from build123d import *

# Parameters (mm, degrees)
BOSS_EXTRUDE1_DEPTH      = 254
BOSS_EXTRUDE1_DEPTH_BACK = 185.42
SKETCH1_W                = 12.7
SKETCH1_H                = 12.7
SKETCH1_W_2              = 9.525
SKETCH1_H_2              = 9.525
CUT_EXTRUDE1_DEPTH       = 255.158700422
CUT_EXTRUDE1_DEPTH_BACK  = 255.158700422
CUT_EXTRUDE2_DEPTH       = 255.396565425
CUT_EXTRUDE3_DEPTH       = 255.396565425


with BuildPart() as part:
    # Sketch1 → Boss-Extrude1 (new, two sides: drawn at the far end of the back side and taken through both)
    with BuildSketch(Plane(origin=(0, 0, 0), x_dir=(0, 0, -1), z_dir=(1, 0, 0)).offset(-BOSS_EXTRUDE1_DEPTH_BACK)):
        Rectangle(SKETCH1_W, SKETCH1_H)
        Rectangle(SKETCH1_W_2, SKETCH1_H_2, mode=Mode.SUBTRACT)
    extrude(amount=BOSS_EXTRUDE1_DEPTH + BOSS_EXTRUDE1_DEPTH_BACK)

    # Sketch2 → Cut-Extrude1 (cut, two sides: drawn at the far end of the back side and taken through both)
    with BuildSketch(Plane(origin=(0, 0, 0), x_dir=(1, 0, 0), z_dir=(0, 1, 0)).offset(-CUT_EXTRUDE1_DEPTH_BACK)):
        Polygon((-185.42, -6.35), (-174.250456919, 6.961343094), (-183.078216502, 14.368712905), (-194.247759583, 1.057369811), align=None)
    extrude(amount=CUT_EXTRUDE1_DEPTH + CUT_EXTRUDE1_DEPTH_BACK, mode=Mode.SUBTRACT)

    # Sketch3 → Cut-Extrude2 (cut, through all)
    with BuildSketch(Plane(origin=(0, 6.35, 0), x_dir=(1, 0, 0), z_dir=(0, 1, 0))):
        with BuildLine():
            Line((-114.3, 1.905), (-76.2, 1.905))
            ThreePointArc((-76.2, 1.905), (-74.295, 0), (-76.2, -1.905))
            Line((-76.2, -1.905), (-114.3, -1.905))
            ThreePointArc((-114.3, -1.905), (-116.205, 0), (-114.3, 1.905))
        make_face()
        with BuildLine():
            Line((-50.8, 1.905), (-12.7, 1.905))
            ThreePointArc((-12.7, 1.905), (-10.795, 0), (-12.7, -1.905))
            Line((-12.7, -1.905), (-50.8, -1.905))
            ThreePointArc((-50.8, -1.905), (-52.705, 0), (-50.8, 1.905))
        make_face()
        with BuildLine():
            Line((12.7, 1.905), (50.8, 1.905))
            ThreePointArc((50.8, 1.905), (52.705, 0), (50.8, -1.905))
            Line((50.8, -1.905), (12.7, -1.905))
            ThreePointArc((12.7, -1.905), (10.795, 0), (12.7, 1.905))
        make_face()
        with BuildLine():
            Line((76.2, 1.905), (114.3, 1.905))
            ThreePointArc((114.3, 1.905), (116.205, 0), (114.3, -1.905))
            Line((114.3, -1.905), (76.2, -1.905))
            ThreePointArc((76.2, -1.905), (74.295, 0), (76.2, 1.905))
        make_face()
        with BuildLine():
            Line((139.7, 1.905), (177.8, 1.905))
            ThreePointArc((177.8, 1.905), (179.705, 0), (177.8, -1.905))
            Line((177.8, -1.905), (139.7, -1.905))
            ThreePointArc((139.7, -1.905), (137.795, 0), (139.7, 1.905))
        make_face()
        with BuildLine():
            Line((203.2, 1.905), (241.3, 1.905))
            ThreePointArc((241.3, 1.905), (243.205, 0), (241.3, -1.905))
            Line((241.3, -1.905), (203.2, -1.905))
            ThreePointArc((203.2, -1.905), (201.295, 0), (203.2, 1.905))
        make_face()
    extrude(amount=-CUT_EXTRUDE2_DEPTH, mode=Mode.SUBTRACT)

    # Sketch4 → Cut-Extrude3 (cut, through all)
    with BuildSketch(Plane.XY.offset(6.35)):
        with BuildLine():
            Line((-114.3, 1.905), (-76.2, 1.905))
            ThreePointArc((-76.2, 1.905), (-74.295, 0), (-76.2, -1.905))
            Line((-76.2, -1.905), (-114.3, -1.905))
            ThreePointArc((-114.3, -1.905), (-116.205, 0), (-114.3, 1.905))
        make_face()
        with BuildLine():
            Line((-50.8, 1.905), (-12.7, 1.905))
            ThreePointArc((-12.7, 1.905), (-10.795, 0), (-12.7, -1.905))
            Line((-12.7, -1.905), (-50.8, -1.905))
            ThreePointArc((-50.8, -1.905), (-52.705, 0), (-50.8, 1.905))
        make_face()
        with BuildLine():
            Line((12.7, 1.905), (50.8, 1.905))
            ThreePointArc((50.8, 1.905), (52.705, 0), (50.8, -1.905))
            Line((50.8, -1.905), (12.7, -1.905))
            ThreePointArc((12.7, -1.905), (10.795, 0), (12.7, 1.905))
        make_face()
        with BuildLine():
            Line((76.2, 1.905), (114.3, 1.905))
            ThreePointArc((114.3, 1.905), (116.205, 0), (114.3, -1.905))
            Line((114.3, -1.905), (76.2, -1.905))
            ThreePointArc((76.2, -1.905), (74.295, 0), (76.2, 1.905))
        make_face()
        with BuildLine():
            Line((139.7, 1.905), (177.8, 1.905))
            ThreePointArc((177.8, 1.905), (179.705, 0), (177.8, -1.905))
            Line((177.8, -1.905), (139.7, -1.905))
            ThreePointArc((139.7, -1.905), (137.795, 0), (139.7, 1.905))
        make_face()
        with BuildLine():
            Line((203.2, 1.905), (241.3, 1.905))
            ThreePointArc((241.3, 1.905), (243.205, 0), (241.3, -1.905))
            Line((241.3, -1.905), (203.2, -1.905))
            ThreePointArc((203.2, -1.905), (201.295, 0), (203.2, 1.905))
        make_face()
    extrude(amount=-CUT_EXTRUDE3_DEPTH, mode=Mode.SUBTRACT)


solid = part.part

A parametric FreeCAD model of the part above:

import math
import FreeCAD as App
import Part
import Sketcher
from FreeCAD import Vector
Q = App.Units.Quantity

doc = App.newDocument("Part")
body = doc.addObject("PartDesign::Body", "Body")

# Sketch on YZ plane
sketch1 = body.newObject("Sketcher::SketchObject", "Sketch")
sketch1.AttachmentSupport = (doc.getObject("YZ_Plane"), [""])
sketch1.MapMode = "FlatFace"
sketch1.addGeometry([
    Part.LineSegment(Vector(6, 6, 0), Vector(-6, 6, 0)),  # 0
    Part.LineSegment(Vector(-6, 6, 0), Vector(-6, -6, 0)),  # 1
    Part.LineSegment(Vector(-6, -6, 0), Vector(6, -6, 0)),  # 2
    Part.LineSegment(Vector(6, -6, 0), Vector(6, 6, 0)),  # 3
    Part.LineSegment(Vector(-5, -5, 0), Vector(-5, 5, 0)),  # 4
    Part.LineSegment(Vector(-5, 5, 0), Vector(5, 5, 0)),  # 5
    Part.LineSegment(Vector(5, 5, 0), Vector(5, -5, 0)),  # 6
    Part.LineSegment(Vector(5, -5, 0), Vector(-5, -5, 0)),  # 7
], False)
sketch1.addConstraint([
    Sketcher.Constraint("Coincident", 0, 2, 1, 1),
    Sketcher.Constraint("Coincident", 1, 2, 2, 1),
    Sketcher.Constraint("Coincident", 2, 2, 3, 1),
    Sketcher.Constraint("Coincident", 3, 2, 0, 1),
    Sketcher.Constraint("Coincident", 4, 2, 5, 1),
    Sketcher.Constraint("Coincident", 5, 2, 6, 1),
    Sketcher.Constraint("Coincident", 6, 2, 7, 1),
    Sketcher.Constraint("Coincident", 7, 2, 4, 1),
    Sketcher.Constraint("Horizontal", 0),
    Sketcher.Constraint("Vertical", 1),
    Sketcher.Constraint("Horizontal", 2),
    Sketcher.Constraint("Vertical", 3),
    Sketcher.Constraint("Vertical", 4),
    Sketcher.Constraint("Horizontal", 5),
    Sketcher.Constraint("Vertical", 6),
    Sketcher.Constraint("Horizontal", 7),
    Sketcher.Constraint("Symmetric", 0, 2, 2, 2, -1, 1),
    Sketcher.Constraint("Symmetric", 4, 2, 6, 2, -1, 1),
    Sketcher.Constraint("Equal", 2, 1),
    Sketcher.Constraint("Equal", 7, 4),
    Sketcher.Constraint("DistanceX", 0, 2, 0, 1, Q("0.5 in")),
    Sketcher.Constraint("DistanceX", 5, 1, 5, 2, Q("0.375 in")),
])
pad1 = body.newObject("PartDesign::Pad", "Pad")
pad1.Profile = sketch1
pad1.Type = "TwoLengths"
pad1.Length = Q("10 in")
pad1.Length2 = Q("7.3 in")

# Sketch on XZ plane
sketch2 = body.newObject("Sketcher::SketchObject", "Sketch001")
sketch2.AttachmentSupport = (doc.getObject("XZ_Plane"), [""])
sketch2.MapMode = "FlatFace"
sketch2.addGeometry([
    Part.LineSegment(Vector(-185, 6, 0), Vector(-174, -7, 0)),
    Part.LineSegment(Vector(-174, -7, 0), Vector(-183, -14, 0)),
    Part.LineSegment(Vector(-183, -14, 0), Vector(-194, -1, 0)),
    Part.LineSegment(Vector(-194, -1, 0), Vector(-185, 6, 0)),
], False)
sketch2.addConstraint([
    Sketcher.Constraint("Coincident", 0, 2, 1, 1),
    Sketcher.Constraint("Coincident", 1, 2, 2, 1),
    Sketcher.Constraint("Coincident", 2, 2, 3, 1),
    Sketcher.Constraint("Coincident", 3, 2, 0, 1),
    Sketcher.Constraint("Perpendicular", 0, 1),
    Sketcher.Constraint("Perpendicular", 1, 2),
    Sketcher.Constraint("Perpendicular", 2, 3),
    Sketcher.Constraint("Angle", 0, Q("-50 deg")),
    Sketcher.Constraint("DistanceX", 3, 2, -1, 1, Q("7.3 in")),
    Sketcher.Constraint("DistanceY", -1, 1, 3, 2, Q("0.25 in")),
    Sketcher.Constraint("Distance", 1, Q("11.523822 mm")),
    Sketcher.Constraint("Distance", 0, Q("17.376724 mm")),
])
pocket1 = body.newObject("PartDesign::Pocket", "Pocket")
pocket1.Profile = sketch2
pocket1.Type = "ThroughAll"
pocket1.Midplane = True

# Sketch on XZ plane
sketch3 = body.newObject("Sketcher::SketchObject", "Sketch002")
sketch3.AttachmentSupport = (doc.getObject("XZ_Plane"), [""])
sketch3.MapMode = "FlatFace"
sketch3.AttachmentOffset = App.Placement(Vector(0, 0, -0.25 * 25.4), App.Rotation())
sketch3.addGeometry([
    Part.LineSegment(Vector(-76.2, -1.9, 0), Vector(-114.3, -1.9, 0)),  # 0
    Part.ArcOfCircle(Part.Circle(Vector(-114.3, 0, 0), Vector(0, 0, 1), 1.9), math.radians(90), math.radians(270)),  # 1
    Part.LineSegment(Vector(-114.3, 1.9, 0), Vector(-76.2, 1.9, 0)),  # 2
    Part.ArcOfCircle(Part.Circle(Vector(-76.2, 0, 0), Vector(0, 0, 1), 1.9), math.radians(-90), math.radians(90)),  # 3
    Part.LineSegment(Vector(-12.7, -1.9, 0), Vector(-50.8, -1.9, 0)),  # 4
    Part.ArcOfCircle(Part.Circle(Vector(-50.8, 0, 0), Vector(0, 0, 1), 1.9), math.radians(90), math.radians(270)),  # 5
    Part.LineSegment(Vector(-50.8, 1.9, 0), Vector(-12.7, 1.9, 0)),  # 6
    Part.ArcOfCircle(Part.Circle(Vector(-12.7, 0, 0), Vector(0, 0, 1), 1.9), math.radians(-90), math.radians(90)),  # 7
    Part.LineSegment(Vector(50.8, -1.9, 0), Vector(12.7, -1.9, 0)),  # 8
    Part.ArcOfCircle(Part.Circle(Vector(12.7, 0, 0), Vector(0, 0, 1), 1.9), math.radians(90), math.radians(270)),  # 9
    Part.LineSegment(Vector(12.7, 1.9, 0), Vector(50.8, 1.9, 0)),  # 10
    Part.ArcOfCircle(Part.Circle(Vector(50.8, 0, 0), Vector(0, 0, 1), 1.9), math.radians(-90), math.radians(90)),  # 11
    Part.LineSegment(Vector(114.3, -1.9, 0), Vector(76.2, -1.9, 0)),  # 12
    Part.ArcOfCircle(Part.Circle(Vector(76.2, 0, 0), Vector(0, 0, 1), 1.9), math.radians(90), math.radians(270)),  # 13
    Part.LineSegment(Vector(76.2, 1.9, 0), Vector(114.3, 1.9, 0)),  # 14
    Part.ArcOfCircle(Part.Circle(Vector(114.3, 0, 0), Vector(0, 0, 1), 1.9), math.radians(-90), math.radians(90)),  # 15
    Part.LineSegment(Vector(177.8, -1.9, 0), Vector(139.7, -1.9, 0)),  # 16
    Part.ArcOfCircle(Part.Circle(Vector(139.7, 0, 0), Vector(0, 0, 1), 1.9), math.radians(90), math.radians(270)),  # 17
    Part.LineSegment(Vector(139.7, 1.9, 0), Vector(177.8, 1.9, 0)),  # 18
    Part.ArcOfCircle(Part.Circle(Vector(177.8, 0, 0), Vector(0, 0, 1), 1.9), math.radians(-90), math.radians(90)),  # 19
    Part.LineSegment(Vector(241.3, -1.9, 0), Vector(203.2, -1.9, 0)),  # 20
    Part.ArcOfCircle(Part.Circle(Vector(203.2, 0, 0), Vector(0, 0, 1), 1.9), math.radians(90), math.radians(270)),  # 21
    Part.LineSegment(Vector(203.2, 1.9, 0), Vector(241.3, 1.9, 0)),  # 22
    Part.ArcOfCircle(Part.Circle(Vector(241.3, 0, 0), Vector(0, 0, 1), 1.9), math.radians(-90), math.radians(90)),  # 23
], False)
sketch3.addConstraint([
    Sketcher.Constraint("Tangent", 0, 2, 1, 2),
    Sketcher.Constraint("Tangent", 1, 1, 2, 1),
    Sketcher.Constraint("Tangent", 2, 2, 3, 2),
    Sketcher.Constraint("Tangent", 3, 1, 0, 1),
    Sketcher.Constraint("Tangent", 4, 2, 5, 2),
    Sketcher.Constraint("Tangent", 5, 1, 6, 1),
    Sketcher.Constraint("Tangent", 6, 2, 7, 2),
    Sketcher.Constraint("Tangent", 7, 1, 4, 1),
    Sketcher.Constraint("Tangent", 8, 2, 9, 2),
    Sketcher.Constraint("Tangent", 9, 1, 10, 1),
    Sketcher.Constraint("Tangent", 10, 2, 11, 2),
    Sketcher.Constraint("Tangent", 11, 1, 8, 1),
    Sketcher.Constraint("Tangent", 12, 2, 13, 2),
    Sketcher.Constraint("Tangent", 13, 1, 14, 1),
    Sketcher.Constraint("Tangent", 14, 2, 15, 2),
    Sketcher.Constraint("Tangent", 15, 1, 12, 1),
    Sketcher.Constraint("Tangent", 16, 2, 17, 2),
    Sketcher.Constraint("Tangent", 17, 1, 18, 1),
    Sketcher.Constraint("Tangent", 18, 2, 19, 2),
    Sketcher.Constraint("Tangent", 19, 1, 16, 1),
    Sketcher.Constraint("Tangent", 20, 2, 21, 2),
    Sketcher.Constraint("Tangent", 21, 1, 22, 1),
    Sketcher.Constraint("Tangent", 22, 2, 23, 2),
    Sketcher.Constraint("Tangent", 23, 1, 20, 1),
    Sketcher.Constraint("Horizontal", 0),
    Sketcher.Constraint("Horizontal", 2),
    Sketcher.Constraint("Horizontal", 4),
    Sketcher.Constraint("Horizontal", 6),
    Sketcher.Constraint("Horizontal", 8),
    Sketcher.Constraint("Horizontal", 10),
    Sketcher.Constraint("Horizontal", 12),
    Sketcher.Constraint("Horizontal", 14),
    Sketcher.Constraint("Horizontal", 16),
    Sketcher.Constraint("Horizontal", 18),
    Sketcher.Constraint("Horizontal", 20),
    Sketcher.Constraint("Horizontal", 22),
    Sketcher.Constraint("Equal", 3, 5),
    Sketcher.Constraint("Equal", 7, 9),
    Sketcher.Constraint("Equal", 11, 13),
    Sketcher.Constraint("Equal", 15, 17),
    Sketcher.Constraint("Equal", 19, 21),
    Sketcher.Constraint("Symmetric", 7, 3, 9, 3, -1, 1),
    Sketcher.Constraint("Symmetric", 3, 3, 13, 3, -1, 1),
    Sketcher.Constraint("Symmetric", 5, 3, 11, 3, -2),
    Sketcher.Constraint("Symmetric", 1, 3, 15, 3, -2),
    Sketcher.Constraint("PointOnObject", 17, 3, -1),
    Sketcher.Constraint("PointOnObject", 21, 3, -1),
    Sketcher.Constraint("Equal", 2, 4),
    Sketcher.Constraint("Equal", 14, 16),
    Sketcher.Constraint("Equal", 18, 20),
    Sketcher.Constraint("DistanceX", 0, 2, 0, 1, Q("1.5 in")),
    Sketcher.Constraint("DistanceX", 3, 3, -1, 1, Q("3 in")),
    Sketcher.Constraint("DistanceX", 5, 3, -1, 1, Q("2 in")),
    Sketcher.Constraint("DistanceX", -1, 1, 19, 3, Q("7 in")),
    Sketcher.Constraint("DistanceX", -1, 1, 21, 3, Q("8 in")),
    Sketcher.Constraint("Radius", 1, Q("0.075 in")),
])
pocket2 = body.newObject("PartDesign::Pocket", "Pocket001")
pocket2.Profile = sketch3
pocket2.Type = "ThroughAll"
pocket2.Reversed = True

# Sketch on XY plane
sketch4 = body.newObject("Sketcher::SketchObject", "Sketch003")
sketch4.AttachmentSupport = (doc.getObject("XY_Plane"), [""])
sketch4.MapMode = "FlatFace"
sketch4.AttachmentOffset = App.Placement(Vector(0, 0, 0.25 * 25.4), App.Rotation())
sketch4.addGeometry([
    Part.LineSegment(Vector(-76.2, 1.9, 0), Vector(-114.3, 1.9, 0)),  # 0
    Part.ArcOfCircle(Part.Circle(Vector(-114.3, 0, 0), Vector(0, 0, 1), 1.9), math.radians(90), math.radians(270)),  # 1
    Part.LineSegment(Vector(-114.3, -1.9, 0), Vector(-76.2, -1.9, 0)),  # 2
    Part.ArcOfCircle(Part.Circle(Vector(-76.2, 0, 0), Vector(0, 0, 1), 1.9), math.radians(-90), math.radians(90)),  # 3
    Part.LineSegment(Vector(-12.7, 1.9, 0), Vector(-50.8, 1.9, 0)),  # 4
    Part.ArcOfCircle(Part.Circle(Vector(-50.8, 0, 0), Vector(0, 0, 1), 1.9), math.radians(90), math.radians(270)),  # 5
    Part.LineSegment(Vector(-50.8, -1.9, 0), Vector(-12.7, -1.9, 0)),  # 6
    Part.ArcOfCircle(Part.Circle(Vector(-12.7, 0, 0), Vector(0, 0, 1), 1.9), math.radians(-90), math.radians(90)),  # 7
    Part.LineSegment(Vector(50.8, 1.9, 0), Vector(12.7, 1.9, 0)),  # 8
    Part.ArcOfCircle(Part.Circle(Vector(12.7, 0, 0), Vector(0, 0, 1), 1.9), math.radians(90), math.radians(270)),  # 9
    Part.LineSegment(Vector(12.7, -1.9, 0), Vector(50.8, -1.9, 0)),  # 10
    Part.ArcOfCircle(Part.Circle(Vector(50.8, 0, 0), Vector(0, 0, 1), 1.9), math.radians(-90), math.radians(90)),  # 11
    Part.LineSegment(Vector(114.3, 1.9, 0), Vector(76.2, 1.9, 0)),  # 12
    Part.ArcOfCircle(Part.Circle(Vector(76.2, 0, 0), Vector(0, 0, 1), 1.9), math.radians(90), math.radians(270)),  # 13
    Part.LineSegment(Vector(76.2, -1.9, 0), Vector(114.3, -1.9, 0)),  # 14
    Part.ArcOfCircle(Part.Circle(Vector(114.3, 0, 0), Vector(0, 0, 1), 1.9), math.radians(-90), math.radians(90)),  # 15
    Part.LineSegment(Vector(177.8, 1.9, 0), Vector(139.7, 1.9, 0)),  # 16
    Part.ArcOfCircle(Part.Circle(Vector(139.7, 0, 0), Vector(0, 0, 1), 1.9), math.radians(90), math.radians(270)),  # 17
    Part.LineSegment(Vector(139.7, -1.9, 0), Vector(177.8, -1.9, 0)),  # 18
    Part.ArcOfCircle(Part.Circle(Vector(177.8, 0, 0), Vector(0, 0, 1), 1.9), math.radians(-90), math.radians(90)),  # 19
    Part.LineSegment(Vector(241.3, 1.9, 0), Vector(203.2, 1.9, 0)),  # 20
    Part.ArcOfCircle(Part.Circle(Vector(203.2, 0, 0), Vector(0, 0, 1), 1.9), math.radians(90), math.radians(270)),  # 21
    Part.LineSegment(Vector(203.2, -1.9, 0), Vector(241.3, -1.9, 0)),  # 22
    Part.ArcOfCircle(Part.Circle(Vector(241.3, 0, 0), Vector(0, 0, 1), 1.9), math.radians(-90), math.radians(90)),  # 23
], False)
sketch4.addConstraint([
    Sketcher.Constraint("Tangent", 0, 2, 1, 1),
    Sketcher.Constraint("Tangent", 1, 2, 2, 1),
    Sketcher.Constraint("Tangent", 2, 2, 3, 1),
    Sketcher.Constraint("Tangent", 3, 2, 0, 1),
    Sketcher.Constraint("Tangent", 4, 2, 5, 1),
    Sketcher.Constraint("Tangent", 5, 2, 6, 1),
    Sketcher.Constraint("Tangent", 6, 2, 7, 1),
    Sketcher.Constraint("Tangent", 7, 2, 4, 1),
    Sketcher.Constraint("Tangent", 8, 2, 9, 1),
    Sketcher.Constraint("Tangent", 9, 2, 10, 1),
    Sketcher.Constraint("Tangent", 10, 2, 11, 1),
    Sketcher.Constraint("Tangent", 11, 2, 8, 1),
    Sketcher.Constraint("Tangent", 12, 2, 13, 1),
    Sketcher.Constraint("Tangent", 13, 2, 14, 1),
    Sketcher.Constraint("Tangent", 14, 2, 15, 1),
    Sketcher.Constraint("Tangent", 15, 2, 12, 1),
    Sketcher.Constraint("Tangent", 16, 2, 17, 1),
    Sketcher.Constraint("Tangent", 17, 2, 18, 1),
    Sketcher.Constraint("Tangent", 18, 2, 19, 1),
    Sketcher.Constraint("Tangent", 19, 2, 16, 1),
    Sketcher.Constraint("Tangent", 20, 2, 21, 1),
    Sketcher.Constraint("Tangent", 21, 2, 22, 1),
    Sketcher.Constraint("Tangent", 22, 2, 23, 1),
    Sketcher.Constraint("Tangent", 23, 2, 20, 1),
    Sketcher.Constraint("Horizontal", 0),
    Sketcher.Constraint("Horizontal", 2),
    Sketcher.Constraint("Horizontal", 4),
    Sketcher.Constraint("Horizontal", 6),
    Sketcher.Constraint("Horizontal", 8),
    Sketcher.Constraint("Horizontal", 10),
    Sketcher.Constraint("Horizontal", 12),
    Sketcher.Constraint("Horizontal", 14),
    Sketcher.Constraint("Horizontal", 16),
    Sketcher.Constraint("Horizontal", 18),
    Sketcher.Constraint("Horizontal", 20),
    Sketcher.Constraint("Horizontal", 22),
    Sketcher.Constraint("Equal", 3, 5),
    Sketcher.Constraint("Equal", 7, 9),
    Sketcher.Constraint("Equal", 11, 13),
    Sketcher.Constraint("Equal", 15, 17),
    Sketcher.Constraint("Equal", 19, 21),
    Sketcher.Constraint("Symmetric", 7, 3, 9, 3, -1, 1),
    Sketcher.Constraint("Symmetric", 3, 3, 13, 3, -1, 1),
    Sketcher.Constraint("Symmetric", 5, 3, 11, 3, -2),
    Sketcher.Constraint("Symmetric", 1, 3, 15, 3, -2),
    Sketcher.Constraint("PointOnObject", 17, 3, -1),
    Sketcher.Constraint("PointOnObject", 21, 3, -1),
    Sketcher.Constraint("Equal", 2, 4),
    Sketcher.Constraint("Equal", 14, 16),
    Sketcher.Constraint("Equal", 18, 20),
    Sketcher.Constraint("DistanceX", 0, 2, 0, 1, Q("1.5 in")),
    Sketcher.Constraint("DistanceX", 3, 3, -1, 1, Q("3 in")),
    Sketcher.Constraint("DistanceX", 5, 3, -1, 1, Q("2 in")),
    Sketcher.Constraint("DistanceX", -1, 1, 19, 3, Q("7 in")),
    Sketcher.Constraint("DistanceX", -1, 1, 21, 3, Q("8 in")),
    Sketcher.Constraint("Radius", 1, Q("0.075 in")),
])
pocket3 = body.newObject("PartDesign::Pocket", "Pocket002")
pocket3.Profile = sketch4
pocket3.Type = "ThroughAll"

doc.recompute()
